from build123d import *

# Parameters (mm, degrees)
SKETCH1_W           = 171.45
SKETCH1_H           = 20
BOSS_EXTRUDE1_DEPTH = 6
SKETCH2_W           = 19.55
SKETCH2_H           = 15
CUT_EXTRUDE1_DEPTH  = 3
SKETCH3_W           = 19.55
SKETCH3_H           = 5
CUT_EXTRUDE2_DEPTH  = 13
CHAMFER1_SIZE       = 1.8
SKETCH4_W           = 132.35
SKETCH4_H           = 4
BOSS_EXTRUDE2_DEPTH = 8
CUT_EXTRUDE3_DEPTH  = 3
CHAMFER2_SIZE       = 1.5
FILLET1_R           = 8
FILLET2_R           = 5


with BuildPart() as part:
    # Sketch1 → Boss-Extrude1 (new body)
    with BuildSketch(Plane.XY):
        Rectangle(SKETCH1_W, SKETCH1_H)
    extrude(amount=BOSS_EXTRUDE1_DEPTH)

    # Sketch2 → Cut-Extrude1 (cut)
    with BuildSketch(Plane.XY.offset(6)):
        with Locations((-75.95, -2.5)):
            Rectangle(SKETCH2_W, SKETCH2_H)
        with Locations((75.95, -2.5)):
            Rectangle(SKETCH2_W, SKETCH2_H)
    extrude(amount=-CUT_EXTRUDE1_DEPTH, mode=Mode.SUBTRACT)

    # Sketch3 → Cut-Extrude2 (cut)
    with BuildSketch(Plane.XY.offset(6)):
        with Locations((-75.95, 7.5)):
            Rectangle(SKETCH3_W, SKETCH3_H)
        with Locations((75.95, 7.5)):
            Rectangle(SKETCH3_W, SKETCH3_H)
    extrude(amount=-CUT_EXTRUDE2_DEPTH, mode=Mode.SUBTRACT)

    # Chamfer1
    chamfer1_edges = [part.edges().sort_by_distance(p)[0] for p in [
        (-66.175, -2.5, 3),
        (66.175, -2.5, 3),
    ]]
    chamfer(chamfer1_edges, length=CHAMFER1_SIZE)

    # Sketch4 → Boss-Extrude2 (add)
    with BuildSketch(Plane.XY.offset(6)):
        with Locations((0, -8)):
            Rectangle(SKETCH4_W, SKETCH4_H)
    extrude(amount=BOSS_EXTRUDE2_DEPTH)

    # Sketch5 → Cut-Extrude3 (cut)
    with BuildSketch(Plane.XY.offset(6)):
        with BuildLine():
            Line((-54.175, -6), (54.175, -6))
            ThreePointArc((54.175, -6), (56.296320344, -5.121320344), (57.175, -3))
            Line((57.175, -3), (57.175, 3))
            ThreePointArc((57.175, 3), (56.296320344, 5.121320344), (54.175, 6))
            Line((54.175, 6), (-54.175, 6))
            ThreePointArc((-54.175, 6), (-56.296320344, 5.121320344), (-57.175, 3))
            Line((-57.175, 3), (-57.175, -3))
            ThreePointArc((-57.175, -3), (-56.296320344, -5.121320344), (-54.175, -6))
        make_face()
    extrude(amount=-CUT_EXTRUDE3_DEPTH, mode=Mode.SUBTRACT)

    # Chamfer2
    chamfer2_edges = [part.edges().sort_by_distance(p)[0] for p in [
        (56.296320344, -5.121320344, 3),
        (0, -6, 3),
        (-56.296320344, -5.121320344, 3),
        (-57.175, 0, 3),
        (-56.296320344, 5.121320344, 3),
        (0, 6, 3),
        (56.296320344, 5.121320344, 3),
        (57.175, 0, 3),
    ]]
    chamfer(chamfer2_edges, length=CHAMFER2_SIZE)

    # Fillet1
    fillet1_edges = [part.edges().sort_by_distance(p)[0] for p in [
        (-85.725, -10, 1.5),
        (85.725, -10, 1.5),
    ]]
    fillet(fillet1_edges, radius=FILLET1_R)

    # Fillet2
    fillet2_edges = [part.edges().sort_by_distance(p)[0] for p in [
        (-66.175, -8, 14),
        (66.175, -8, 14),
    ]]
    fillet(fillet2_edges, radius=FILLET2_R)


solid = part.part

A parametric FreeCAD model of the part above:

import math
import FreeCAD as App
import Part
import Sketcher

V = App.Vector
Q = App.Units.Quantity


def edges_at(feature, points):
    """Names of the edges that pass closest to the given points."""
    edges = feature.Shape.Edges
    near = lambda p: min(range(len(edges)), key=lambda i: edges[i].distToShape(Part.Vertex(*p))[0])
    return sorted({f"Edge{near(p) + 1}" for p in points})

doc = App.newDocument("Part")
params = doc.addObject("Spreadsheet::Sheet", "Params")
for row, (alias, value) in enumerate([
    ("sketch1_height", "20 mm"),
    ("sketch1_width", "171.45 mm"),
    ("pad1_length", "6 mm"),
    ("sketch2_height", "15 mm"),
    ("sketch2_width", "19.55 mm"),
    ("pocket1_length", "3 mm"),
    ("sketch3_height", "5 mm"),
    ("sketch3_width", "19.55 mm"),
    ("pocket2_length", "13 mm"),
    ("chamfer_size", "1.8 mm"),
    ("sketch4_height", "4 mm"),
    ("sketch4_width", "132.35 mm"),
    ("pad2_length", "8 mm"),
    ("sketch5_radius", "3 mm"),
    ("sketch5_height", "6 mm"),
    ("sketch5_width", "108.35 mm"),
    ("pocket3_length", "3 mm"),
    ("chamfer2_size", "1.5 mm"),
    ("fillet_radius", "8 mm"),
    ("fillet2_radius", "5 mm"),
], start=1):
    params.set(f"A{row}", alias)
    params.set(f"B{row}", "=" + value)
    params.setAlias(f"B{row}", alias)

body = doc.addObject("PartDesign::Body", "Body")

sketch1 = body.newObject("Sketcher::SketchObject", "Sketch")
sketch1.AttachmentSupport = (doc.getObject("XY_Plane"), [""])
sketch1.MapMode = "FlatFace"
sketch1.addGeometry(Part.LineSegment(V(-86, 10, 0), V(-86, -10, 0)), False)
sketch1.addGeometry(Part.LineSegment(V(-86, -10, 0), V(86, -10, 0)), False)
sketch1.addGeometry(Part.LineSegment(V(86, -10, 0), V(86, 10, 0)), False)
sketch1.addGeometry(Part.LineSegment(V(86, 10, 0), V(-86, 10, 0)), False)
sketch1.addConstraint(Sketcher.Constraint("Coincident", 0, 2, 1, 1))
sketch1.addConstraint(Sketcher.Constraint("Coincident", 1, 2, 2, 1))
sketch1.addConstraint(Sketcher.Constraint("Coincident", 2, 2, 3, 1))
sketch1.addConstraint(Sketcher.Constraint("Coincident", 3, 2, 0, 1))
sketch1.addConstraint(Sketcher.Constraint("Vertical", 0))
sketch1.addConstraint(Sketcher.Constraint("Horizontal", 1))
sketch1.addConstraint(Sketcher.Constraint("Vertical", 2))
sketch1.addConstraint(Sketcher.Constraint("Horizontal", 3))
sketch1.addConstraint(Sketcher.Constraint("Symmetric", 0, 2, 2, 2, -1, 1))
sketch1.addConstraint(Sketcher.Constraint("DistanceY", 0, 2, 0, 1, Q("20 mm")))
sketch1.addConstraint(Sketcher.Constraint("DistanceX", 1, 1, 1, 2, Q("171.45 mm")))
sketch1.setExpression("Constraints[9]", "Params.sketch1_height")
sketch1.setExpression("Constraints[10]", "Params.sketch1_width")
pad1 = body.newObject("PartDesign::Pad", "Pad")
pad1.Profile = sketch1
pad1.setExpression("Length", "Params.pad1_length")

sketch2 = body.newObject("Sketcher::SketchObject", "Sketch001")
sketch2.AttachmentSupport = (doc.getObject("XY_Plane"), [""])
sketch2.MapMode = "FlatFace"
sketch2.AttachmentOffset = App.Placement(V(0, 0, 6), App.Rotation())
sketch2.addGeometry(Part.LineSegment(V(-86, 5, 0), V(-86, -10, 0)), False)
sketch2.addGeometry(Part.LineSegment(V(-86, -10, 0), V(-66, -10, 0)), False)
sketch2.addGeometry(Part.LineSegment(V(-66, -10, 0), V(-66, 5, 0)), False)
sketch2.addGeometry(Part.LineSegment(V(-66, 5, 0), V(-86, 5, 0)), False)
sketch2.addGeometry(Part.LineSegment(V(66, 5, 0), V(66, -10, 0)), False)
sketch2.addGeometry(Part.LineSegment(V(66, -10, 0), V(86, -10, 0)), False)
sketch2.addGeometry(Part.LineSegment(V(86, -10, 0), V(86, 5, 0)), False)
sketch2.addGeometry(Part.LineSegment(V(86, 5, 0), V(66, 5, 0)), False)
sketch2.addConstraint(Sketcher.Constraint("Coincident", 0, 2, 1, 1))
sketch2.addConstraint(Sketcher.Constraint("Coincident", 1, 2, 2, 1))
sketch2.addConstraint(Sketcher.Constraint("Coincident", 2, 2, 3, 1))
sketch2.addConstraint(Sketcher.Constraint("Coincident", 3, 2, 0, 1))
sketch2.addConstraint(Sketcher.Constraint("Coincident", 4, 2, 5, 1))
sketch2.addConstraint(Sketcher.Constraint("Coincident", 5, 2, 6, 1))
sketch2.addConstraint(Sketcher.Constraint("Coincident", 6, 2, 7, 1))
sketch2.addConstraint(Sketcher.Constraint("Coincident", 7, 2, 4, 1))
sketch2.addConstraint(Sketcher.Constraint("Vertical", 0))
sketch2.addConstraint(Sketcher.Constraint("Horizontal", 1))
sketch2.addConstraint(Sketcher.Constraint("Vertical", 2))
sketch2.addConstraint(Sketcher.Constraint("Horizontal", 3))
sketch2.addConstraint(Sketcher.Constraint("Vertical", 4))
sketch2.addConstraint(Sketcher.Constraint("Horizontal", 5))
sketch2.addConstraint(Sketcher.Constraint("Vertical", 6))
sketch2.addConstraint(Sketcher.Constraint("Horizontal", 7))
sketch2.addConstraint(Sketcher.Constraint("Symmetric", 1, 2, 4, 2, -2))
sketch2.addConstraint(Sketcher.Constraint("Symmetric", 3, 2, 6, 2, -2))
sketch2.addConstraint(Sketcher.Constraint("DistanceY", 0, 2, 0, 1, Q("15 mm")))
sketch2.addConstraint(Sketcher.Constraint("DistanceY", 0, 2, -1, 1, Q("10 mm")))
sketch2.addConstraint(Sketcher.Constraint("DistanceX", 1, 1, 1, 2, Q("19.55 mm")))
sketch2.addConstraint(Sketcher.Constraint("DistanceX", 0, 2, 4, 2, Q("151.9 mm")))
sketch2.setExpression("Constraints[18]", "Params.sketch2_height")
sketch2.setExpression("Constraints[20]", "Params.sketch2_width")
pocket1 = body.newObject("PartDesign::Pocket", "Pocket")
pocket1.Profile = sketch2
pocket1.setExpression("Length", "Params.pocket1_length")

sketch3 = body.newObject("Sketcher::SketchObject", "Sketch002")
sketch3.AttachmentSupport = (doc.getObject("XY_Plane"), [""])
sketch3.MapMode = "FlatFace"
sketch3.AttachmentOffset = App.Placement(V(0, 0, 6), App.Rotation())
sketch3.addGeometry(Part.LineSegment(V(-86, 10, 0), V(-86, 5, 0)), False)
sketch3.addGeometry(Part.LineSegment(V(-86, 5, 0), V(-66, 5, 0)), False)
sketch3.addGeometry(Part.LineSegment(V(-66, 5, 0), V(-66, 10, 0)), False)
sketch3.addGeometry(Part.LineSegment(V(-66, 10, 0), V(-86, 10, 0)), False)
sketch3.addGeometry(Part.LineSegment(V(66, 10, 0), V(66, 5, 0)), False)
sketch3.addGeometry(Part.LineSegment(V(66, 5, 0), V(86, 5, 0)), False)
sketch3.addGeometry(Part.LineSegment(V(86, 5, 0), V(86, 10, 0)), False)
sketch3.addGeometry(Part.LineSegment(V(86, 10, 0), V(66, 10, 0)), False)
sketch3.addConstraint(Sketcher.Constraint("Coincident", 0, 2, 1, 1))
sketch3.addConstraint(Sketcher.Constraint("Coincident", 1, 2, 2, 1))
sketch3.addConstraint(Sketcher.Constraint("Coincident", 2, 2, 3, 1))
sketch3.addConstraint(Sketcher.Constraint("Coincident", 3, 2, 0, 1))
sketch3.addConstraint(Sketcher.Constraint("Coincident", 4, 2, 5, 1))
sketch3.addConstraint(Sketcher.Constraint("Coincident", 5, 2, 6, 1))
sketch3.addConstraint(Sketcher.Constraint("Coincident", 6, 2, 7, 1))
sketch3.addConstraint(Sketcher.Constraint("Coincident", 7, 2, 4, 1))
sketch3.addConstraint(Sketcher.Constraint("Vertical", 0))
sketch3.addConstraint(Sketcher.Constraint("Horizontal", 1))
sketch3.addConstraint(Sketcher.Constraint("Vertical", 2))
sketch3.addConstraint(Sketcher.Constraint("Horizontal", 3))
sketch3.addConstraint(Sketcher.Constraint("Vertical", 4))
sketch3.addConstraint(Sketcher.Constraint("Horizontal", 5))
sketch3.addConstraint(Sketcher.Constraint("Vertical", 6))
sketch3.addConstraint(Sketcher.Constraint("Horizontal", 7))
sketch3.addConstraint(Sketcher.Constraint("Symmetric", 1, 2, 4, 2, -2))
sketch3.addConstraint(Sketcher.Constraint("Symmetric", 3, 2, 6, 2, -2))
sketch3.addConstraint(Sketcher.Constraint("DistanceY", 0, 2, 0, 1, Q("5 mm")))
sketch3.addConstraint(Sketcher.Constraint("DistanceY", -1, 1, 0, 2, Q("5 mm")))
sketch3.addConstraint(Sketcher.Constraint("DistanceX", 1, 1, 1, 2, Q("19.55 mm")))
sketch3.addConstraint(Sketcher.Constraint("DistanceX", 0, 2, 4, 2, Q("151.9 mm")))
sketch3.setExpression("Constraints[18]", "Params.sketch3_height")
sketch3.setExpression("Constraints[20]", "Params.sketch3_width")
pocket2 = body.newObject("PartDesign::Pocket", "Pocket001")
pocket2.Profile = sketch3
pocket2.setExpression("Length", "Params.pocket2_length")
doc.recompute()

chamfer = body.newObject("PartDesign::Chamfer", "Chamfer")
chamfer.Base = (pocket2, edges_at(pocket2, [(-66.175, -2.5, 3), (66.175, -2.5, 3)]))
chamfer.setExpression("Size", "Params.chamfer_size")

sketch4 = body.newObject("Sketcher::SketchObject", "Sketch003")
sketch4.AttachmentSupport = (doc.getObject("XY_Plane"), [""])
sketch4.MapMode = "FlatFace"
sketch4.AttachmentOffset = App.Placement(V(0, 0, 6), App.Rotation())
sketch4.addGeometry(Part.LineSegment(V(-66.2, -6, 0), V(-66.2, -10, 0)), False)
sketch4.addGeometry(Part.LineSegment(V(-66.2, -10, 0), V(66.2, -10, 0)), False)
sketch4.addGeometry(Part.LineSegment(V(66.2, -10, 0), V(66.2, -6, 0)), False)
sketch4.addGeometry(Part.LineSegment(V(66.2, -6, 0), V(-66.2, -6, 0)), False)
sketch4.addConstraint(Sketcher.Constraint("Coincident", 0, 2, 1, 1))
sketch4.addConstraint(Sketcher.Constraint("Coincident", 1, 2, 2, 1))
sketch4.addConstraint(Sketcher.Constraint("Coincident", 2, 2, 3, 1))
sketch4.addConstraint(Sketcher.Constraint("Coincident", 3, 2, 0, 1))
sketch4.addConstraint(Sketcher.Constraint("Vertical", 0))
sketch4.addConstraint(Sketcher.Constraint("Horizontal", 1))
sketch4.addConstraint(Sketcher.Constraint("Vertical", 2))
sketch4.addConstraint(Sketcher.Constraint("Horizontal", 3))
sketch4.addConstraint(Sketcher.Constraint("DistanceY", 0, 2, 0, 1, Q("4 mm")))
sketch4.addConstraint(Sketcher.Constraint("DistanceY", 0, 2, -1, 1, Q("10 mm")))
sketch4.addConstraint(Sketcher.Constraint("DistanceX", 1, 1, 1, 2, Q("132.35 mm")))
sketch4.addConstraint(Sketcher.Constraint("DistanceX", 0, 2, -1, 1, Q("66.175 mm")))
sketch4.setExpression("Constraints[8]", "Params.sketch4_height")
sketch4.setExpression("Constraints[10]", "Params.sketch4_width")
pad2 = body.newObject("PartDesign::Pad", "Pad001")
pad2.Profile = sketch4
pad2.setExpression("Length", "Params.pad2_length")

sketch5 = body.newObject("Sketcher::SketchObject", "Sketch004")
sketch5.AttachmentSupport = (doc.getObject("XY_Plane"), [""])
sketch5.MapMode = "FlatFace"
sketch5.AttachmentOffset = App.Placement(V(0, 0, 6), App.Rotation())
sketch5.addGeometry(Part.LineSegment(V(-54.2, -6, 0), V(54.2, -6, 0)), False)
sketch5.addGeometry(Part.ArcOfCircle(Part.Circle(V(54.2, -3, 0), V(0, 0, 1), 3), math.radians(-90), math.radians(0)), False)
sketch5.addGeometry(Part.LineSegment(V(57.2, -3, 0), V(57.2, 3, 0)), False)
sketch5.addGeometry(Part.ArcOfCircle(Part.Circle(V(54.2, 3, 0), V(0, 0, 1), 3), math.radians(0), math.radians(90)), False)
sketch5.addGeometry(Part.LineSegment(V(54.2, 6, 0), V(-54.2, 6, 0)), False)
sketch5.addGeometry(Part.ArcOfCircle(Part.Circle(V(-54.2, 3, 0), V(0, 0, 1), 3), math.radians(90), math.radians(180)), False)
sketch5.addGeometry(Part.LineSegment(V(-57.2, 3, 0), V(-57.2, -3, 0)), False)
sketch5.addGeometry(Part.ArcOfCircle(Part.Circle(V(-54.2, -3, 0), V(0, 0, 1), 3), math.radians(180), math.radians(270)), False)
sketch5.addConstraint(Sketcher.Constraint("Tangent", 0, 2, 1, 1))
sketch5.addConstraint(Sketcher.Constraint("Tangent", 1, 2, 2, 1))
sketch5.addConstraint(Sketcher.Constraint("Tangent", 2, 2, 3, 1))
sketch5.addConstraint(Sketcher.Constraint("Tangent", 3, 2, 4, 1))
sketch5.addConstraint(Sketcher.Constraint("Tangent", 4, 2, 5, 1))
sketch5.addConstraint(Sketcher.Constraint("Tangent", 5, 2, 6, 1))
sketch5.addConstraint(Sketcher.Constraint("Tangent", 6, 2, 7, 1))
sketch5.addConstraint(Sketcher.Constraint("Tangent", 7, 2, 0, 1))
sketch5.addConstraint(Sketcher.Constraint("Horizontal", 0))
sketch5.addConstraint(Sketcher.Constraint("Vertical", 2))
sketch5.addConstraint(Sketcher.Constraint("Horizontal", 4))
sketch5.addConstraint(Sketcher.Constraint("Vertical", 6))
sketch5.addConstraint(Sketcher.Constraint("Equal", 1, 3))
sketch5.addConstraint(Sketcher.Constraint("Equal", 3, 5))
sketch5.addConstraint(Sketcher.Constraint("Equal", 5, 7))
sketch5.addConstraint(Sketcher.Constraint("Symmetric", 1, 3, 5, 3, -1, 1))
sketch5.addConstraint(Sketcher.Constraint("Radius", 1, Q("3 mm")))
sketch5.addConstraint(Sketcher.Constraint("DistanceY", 2, 1, 2, 2, Q("6 mm")))
sketch5.addConstraint(Sketcher.Constraint("DistanceX", 0, 1, 0, 2, Q("108.35 mm")))
sketch5.setExpression("Constraints[16]", "Params.sketch5_radius")
sketch5.setExpression("Constraints[17]", "Params.sketch5_height")
sketch5.setExpression("Constraints[18]", "Params.sketch5_width")
pocket3 = body.newObject("PartDesign::Pocket", "Pocket002")
pocket3.Profile = sketch5
pocket3.setExpression("Length", "Params.pocket3_length")
doc.recompute()

chamfer2 = body.newObject("PartDesign::Chamfer", "Chamfer001")
chamfer2.Base = (pocket3, edges_at(pocket3, [
    (56.296, -5.121, 3),
    (0, -6, 3),
    (-56.296, -5.121, 3),
    (-57.175, 0, 3),
    (-56.296, 5.121, 3),
    (0, 6, 3),
    (56.296, 5.121, 3),
    (57.175, 0, 3),
]))
chamfer2.setExpression("Size", "Params.chamfer2_size")
doc.recompute()

fillet = body.newObject("PartDesign::Fillet", "Fillet")
fillet.Base = (chamfer2, edges_at(chamfer2, [(-85.725, -10, 1.5), (85.725, -10, 1.5)]))
fillet.setExpression("Radius", "Params.fillet_radius")
doc.recompute()

fillet2 = body.newObject("PartDesign::Fillet", "Fillet001")
fillet2.Base = (fillet, edges_at(fillet, [(-66.175, -8, 14), (66.175, -8, 14)]))
fillet2.setExpression("Radius", "Params.fillet2_radius")

doc.recompute()
